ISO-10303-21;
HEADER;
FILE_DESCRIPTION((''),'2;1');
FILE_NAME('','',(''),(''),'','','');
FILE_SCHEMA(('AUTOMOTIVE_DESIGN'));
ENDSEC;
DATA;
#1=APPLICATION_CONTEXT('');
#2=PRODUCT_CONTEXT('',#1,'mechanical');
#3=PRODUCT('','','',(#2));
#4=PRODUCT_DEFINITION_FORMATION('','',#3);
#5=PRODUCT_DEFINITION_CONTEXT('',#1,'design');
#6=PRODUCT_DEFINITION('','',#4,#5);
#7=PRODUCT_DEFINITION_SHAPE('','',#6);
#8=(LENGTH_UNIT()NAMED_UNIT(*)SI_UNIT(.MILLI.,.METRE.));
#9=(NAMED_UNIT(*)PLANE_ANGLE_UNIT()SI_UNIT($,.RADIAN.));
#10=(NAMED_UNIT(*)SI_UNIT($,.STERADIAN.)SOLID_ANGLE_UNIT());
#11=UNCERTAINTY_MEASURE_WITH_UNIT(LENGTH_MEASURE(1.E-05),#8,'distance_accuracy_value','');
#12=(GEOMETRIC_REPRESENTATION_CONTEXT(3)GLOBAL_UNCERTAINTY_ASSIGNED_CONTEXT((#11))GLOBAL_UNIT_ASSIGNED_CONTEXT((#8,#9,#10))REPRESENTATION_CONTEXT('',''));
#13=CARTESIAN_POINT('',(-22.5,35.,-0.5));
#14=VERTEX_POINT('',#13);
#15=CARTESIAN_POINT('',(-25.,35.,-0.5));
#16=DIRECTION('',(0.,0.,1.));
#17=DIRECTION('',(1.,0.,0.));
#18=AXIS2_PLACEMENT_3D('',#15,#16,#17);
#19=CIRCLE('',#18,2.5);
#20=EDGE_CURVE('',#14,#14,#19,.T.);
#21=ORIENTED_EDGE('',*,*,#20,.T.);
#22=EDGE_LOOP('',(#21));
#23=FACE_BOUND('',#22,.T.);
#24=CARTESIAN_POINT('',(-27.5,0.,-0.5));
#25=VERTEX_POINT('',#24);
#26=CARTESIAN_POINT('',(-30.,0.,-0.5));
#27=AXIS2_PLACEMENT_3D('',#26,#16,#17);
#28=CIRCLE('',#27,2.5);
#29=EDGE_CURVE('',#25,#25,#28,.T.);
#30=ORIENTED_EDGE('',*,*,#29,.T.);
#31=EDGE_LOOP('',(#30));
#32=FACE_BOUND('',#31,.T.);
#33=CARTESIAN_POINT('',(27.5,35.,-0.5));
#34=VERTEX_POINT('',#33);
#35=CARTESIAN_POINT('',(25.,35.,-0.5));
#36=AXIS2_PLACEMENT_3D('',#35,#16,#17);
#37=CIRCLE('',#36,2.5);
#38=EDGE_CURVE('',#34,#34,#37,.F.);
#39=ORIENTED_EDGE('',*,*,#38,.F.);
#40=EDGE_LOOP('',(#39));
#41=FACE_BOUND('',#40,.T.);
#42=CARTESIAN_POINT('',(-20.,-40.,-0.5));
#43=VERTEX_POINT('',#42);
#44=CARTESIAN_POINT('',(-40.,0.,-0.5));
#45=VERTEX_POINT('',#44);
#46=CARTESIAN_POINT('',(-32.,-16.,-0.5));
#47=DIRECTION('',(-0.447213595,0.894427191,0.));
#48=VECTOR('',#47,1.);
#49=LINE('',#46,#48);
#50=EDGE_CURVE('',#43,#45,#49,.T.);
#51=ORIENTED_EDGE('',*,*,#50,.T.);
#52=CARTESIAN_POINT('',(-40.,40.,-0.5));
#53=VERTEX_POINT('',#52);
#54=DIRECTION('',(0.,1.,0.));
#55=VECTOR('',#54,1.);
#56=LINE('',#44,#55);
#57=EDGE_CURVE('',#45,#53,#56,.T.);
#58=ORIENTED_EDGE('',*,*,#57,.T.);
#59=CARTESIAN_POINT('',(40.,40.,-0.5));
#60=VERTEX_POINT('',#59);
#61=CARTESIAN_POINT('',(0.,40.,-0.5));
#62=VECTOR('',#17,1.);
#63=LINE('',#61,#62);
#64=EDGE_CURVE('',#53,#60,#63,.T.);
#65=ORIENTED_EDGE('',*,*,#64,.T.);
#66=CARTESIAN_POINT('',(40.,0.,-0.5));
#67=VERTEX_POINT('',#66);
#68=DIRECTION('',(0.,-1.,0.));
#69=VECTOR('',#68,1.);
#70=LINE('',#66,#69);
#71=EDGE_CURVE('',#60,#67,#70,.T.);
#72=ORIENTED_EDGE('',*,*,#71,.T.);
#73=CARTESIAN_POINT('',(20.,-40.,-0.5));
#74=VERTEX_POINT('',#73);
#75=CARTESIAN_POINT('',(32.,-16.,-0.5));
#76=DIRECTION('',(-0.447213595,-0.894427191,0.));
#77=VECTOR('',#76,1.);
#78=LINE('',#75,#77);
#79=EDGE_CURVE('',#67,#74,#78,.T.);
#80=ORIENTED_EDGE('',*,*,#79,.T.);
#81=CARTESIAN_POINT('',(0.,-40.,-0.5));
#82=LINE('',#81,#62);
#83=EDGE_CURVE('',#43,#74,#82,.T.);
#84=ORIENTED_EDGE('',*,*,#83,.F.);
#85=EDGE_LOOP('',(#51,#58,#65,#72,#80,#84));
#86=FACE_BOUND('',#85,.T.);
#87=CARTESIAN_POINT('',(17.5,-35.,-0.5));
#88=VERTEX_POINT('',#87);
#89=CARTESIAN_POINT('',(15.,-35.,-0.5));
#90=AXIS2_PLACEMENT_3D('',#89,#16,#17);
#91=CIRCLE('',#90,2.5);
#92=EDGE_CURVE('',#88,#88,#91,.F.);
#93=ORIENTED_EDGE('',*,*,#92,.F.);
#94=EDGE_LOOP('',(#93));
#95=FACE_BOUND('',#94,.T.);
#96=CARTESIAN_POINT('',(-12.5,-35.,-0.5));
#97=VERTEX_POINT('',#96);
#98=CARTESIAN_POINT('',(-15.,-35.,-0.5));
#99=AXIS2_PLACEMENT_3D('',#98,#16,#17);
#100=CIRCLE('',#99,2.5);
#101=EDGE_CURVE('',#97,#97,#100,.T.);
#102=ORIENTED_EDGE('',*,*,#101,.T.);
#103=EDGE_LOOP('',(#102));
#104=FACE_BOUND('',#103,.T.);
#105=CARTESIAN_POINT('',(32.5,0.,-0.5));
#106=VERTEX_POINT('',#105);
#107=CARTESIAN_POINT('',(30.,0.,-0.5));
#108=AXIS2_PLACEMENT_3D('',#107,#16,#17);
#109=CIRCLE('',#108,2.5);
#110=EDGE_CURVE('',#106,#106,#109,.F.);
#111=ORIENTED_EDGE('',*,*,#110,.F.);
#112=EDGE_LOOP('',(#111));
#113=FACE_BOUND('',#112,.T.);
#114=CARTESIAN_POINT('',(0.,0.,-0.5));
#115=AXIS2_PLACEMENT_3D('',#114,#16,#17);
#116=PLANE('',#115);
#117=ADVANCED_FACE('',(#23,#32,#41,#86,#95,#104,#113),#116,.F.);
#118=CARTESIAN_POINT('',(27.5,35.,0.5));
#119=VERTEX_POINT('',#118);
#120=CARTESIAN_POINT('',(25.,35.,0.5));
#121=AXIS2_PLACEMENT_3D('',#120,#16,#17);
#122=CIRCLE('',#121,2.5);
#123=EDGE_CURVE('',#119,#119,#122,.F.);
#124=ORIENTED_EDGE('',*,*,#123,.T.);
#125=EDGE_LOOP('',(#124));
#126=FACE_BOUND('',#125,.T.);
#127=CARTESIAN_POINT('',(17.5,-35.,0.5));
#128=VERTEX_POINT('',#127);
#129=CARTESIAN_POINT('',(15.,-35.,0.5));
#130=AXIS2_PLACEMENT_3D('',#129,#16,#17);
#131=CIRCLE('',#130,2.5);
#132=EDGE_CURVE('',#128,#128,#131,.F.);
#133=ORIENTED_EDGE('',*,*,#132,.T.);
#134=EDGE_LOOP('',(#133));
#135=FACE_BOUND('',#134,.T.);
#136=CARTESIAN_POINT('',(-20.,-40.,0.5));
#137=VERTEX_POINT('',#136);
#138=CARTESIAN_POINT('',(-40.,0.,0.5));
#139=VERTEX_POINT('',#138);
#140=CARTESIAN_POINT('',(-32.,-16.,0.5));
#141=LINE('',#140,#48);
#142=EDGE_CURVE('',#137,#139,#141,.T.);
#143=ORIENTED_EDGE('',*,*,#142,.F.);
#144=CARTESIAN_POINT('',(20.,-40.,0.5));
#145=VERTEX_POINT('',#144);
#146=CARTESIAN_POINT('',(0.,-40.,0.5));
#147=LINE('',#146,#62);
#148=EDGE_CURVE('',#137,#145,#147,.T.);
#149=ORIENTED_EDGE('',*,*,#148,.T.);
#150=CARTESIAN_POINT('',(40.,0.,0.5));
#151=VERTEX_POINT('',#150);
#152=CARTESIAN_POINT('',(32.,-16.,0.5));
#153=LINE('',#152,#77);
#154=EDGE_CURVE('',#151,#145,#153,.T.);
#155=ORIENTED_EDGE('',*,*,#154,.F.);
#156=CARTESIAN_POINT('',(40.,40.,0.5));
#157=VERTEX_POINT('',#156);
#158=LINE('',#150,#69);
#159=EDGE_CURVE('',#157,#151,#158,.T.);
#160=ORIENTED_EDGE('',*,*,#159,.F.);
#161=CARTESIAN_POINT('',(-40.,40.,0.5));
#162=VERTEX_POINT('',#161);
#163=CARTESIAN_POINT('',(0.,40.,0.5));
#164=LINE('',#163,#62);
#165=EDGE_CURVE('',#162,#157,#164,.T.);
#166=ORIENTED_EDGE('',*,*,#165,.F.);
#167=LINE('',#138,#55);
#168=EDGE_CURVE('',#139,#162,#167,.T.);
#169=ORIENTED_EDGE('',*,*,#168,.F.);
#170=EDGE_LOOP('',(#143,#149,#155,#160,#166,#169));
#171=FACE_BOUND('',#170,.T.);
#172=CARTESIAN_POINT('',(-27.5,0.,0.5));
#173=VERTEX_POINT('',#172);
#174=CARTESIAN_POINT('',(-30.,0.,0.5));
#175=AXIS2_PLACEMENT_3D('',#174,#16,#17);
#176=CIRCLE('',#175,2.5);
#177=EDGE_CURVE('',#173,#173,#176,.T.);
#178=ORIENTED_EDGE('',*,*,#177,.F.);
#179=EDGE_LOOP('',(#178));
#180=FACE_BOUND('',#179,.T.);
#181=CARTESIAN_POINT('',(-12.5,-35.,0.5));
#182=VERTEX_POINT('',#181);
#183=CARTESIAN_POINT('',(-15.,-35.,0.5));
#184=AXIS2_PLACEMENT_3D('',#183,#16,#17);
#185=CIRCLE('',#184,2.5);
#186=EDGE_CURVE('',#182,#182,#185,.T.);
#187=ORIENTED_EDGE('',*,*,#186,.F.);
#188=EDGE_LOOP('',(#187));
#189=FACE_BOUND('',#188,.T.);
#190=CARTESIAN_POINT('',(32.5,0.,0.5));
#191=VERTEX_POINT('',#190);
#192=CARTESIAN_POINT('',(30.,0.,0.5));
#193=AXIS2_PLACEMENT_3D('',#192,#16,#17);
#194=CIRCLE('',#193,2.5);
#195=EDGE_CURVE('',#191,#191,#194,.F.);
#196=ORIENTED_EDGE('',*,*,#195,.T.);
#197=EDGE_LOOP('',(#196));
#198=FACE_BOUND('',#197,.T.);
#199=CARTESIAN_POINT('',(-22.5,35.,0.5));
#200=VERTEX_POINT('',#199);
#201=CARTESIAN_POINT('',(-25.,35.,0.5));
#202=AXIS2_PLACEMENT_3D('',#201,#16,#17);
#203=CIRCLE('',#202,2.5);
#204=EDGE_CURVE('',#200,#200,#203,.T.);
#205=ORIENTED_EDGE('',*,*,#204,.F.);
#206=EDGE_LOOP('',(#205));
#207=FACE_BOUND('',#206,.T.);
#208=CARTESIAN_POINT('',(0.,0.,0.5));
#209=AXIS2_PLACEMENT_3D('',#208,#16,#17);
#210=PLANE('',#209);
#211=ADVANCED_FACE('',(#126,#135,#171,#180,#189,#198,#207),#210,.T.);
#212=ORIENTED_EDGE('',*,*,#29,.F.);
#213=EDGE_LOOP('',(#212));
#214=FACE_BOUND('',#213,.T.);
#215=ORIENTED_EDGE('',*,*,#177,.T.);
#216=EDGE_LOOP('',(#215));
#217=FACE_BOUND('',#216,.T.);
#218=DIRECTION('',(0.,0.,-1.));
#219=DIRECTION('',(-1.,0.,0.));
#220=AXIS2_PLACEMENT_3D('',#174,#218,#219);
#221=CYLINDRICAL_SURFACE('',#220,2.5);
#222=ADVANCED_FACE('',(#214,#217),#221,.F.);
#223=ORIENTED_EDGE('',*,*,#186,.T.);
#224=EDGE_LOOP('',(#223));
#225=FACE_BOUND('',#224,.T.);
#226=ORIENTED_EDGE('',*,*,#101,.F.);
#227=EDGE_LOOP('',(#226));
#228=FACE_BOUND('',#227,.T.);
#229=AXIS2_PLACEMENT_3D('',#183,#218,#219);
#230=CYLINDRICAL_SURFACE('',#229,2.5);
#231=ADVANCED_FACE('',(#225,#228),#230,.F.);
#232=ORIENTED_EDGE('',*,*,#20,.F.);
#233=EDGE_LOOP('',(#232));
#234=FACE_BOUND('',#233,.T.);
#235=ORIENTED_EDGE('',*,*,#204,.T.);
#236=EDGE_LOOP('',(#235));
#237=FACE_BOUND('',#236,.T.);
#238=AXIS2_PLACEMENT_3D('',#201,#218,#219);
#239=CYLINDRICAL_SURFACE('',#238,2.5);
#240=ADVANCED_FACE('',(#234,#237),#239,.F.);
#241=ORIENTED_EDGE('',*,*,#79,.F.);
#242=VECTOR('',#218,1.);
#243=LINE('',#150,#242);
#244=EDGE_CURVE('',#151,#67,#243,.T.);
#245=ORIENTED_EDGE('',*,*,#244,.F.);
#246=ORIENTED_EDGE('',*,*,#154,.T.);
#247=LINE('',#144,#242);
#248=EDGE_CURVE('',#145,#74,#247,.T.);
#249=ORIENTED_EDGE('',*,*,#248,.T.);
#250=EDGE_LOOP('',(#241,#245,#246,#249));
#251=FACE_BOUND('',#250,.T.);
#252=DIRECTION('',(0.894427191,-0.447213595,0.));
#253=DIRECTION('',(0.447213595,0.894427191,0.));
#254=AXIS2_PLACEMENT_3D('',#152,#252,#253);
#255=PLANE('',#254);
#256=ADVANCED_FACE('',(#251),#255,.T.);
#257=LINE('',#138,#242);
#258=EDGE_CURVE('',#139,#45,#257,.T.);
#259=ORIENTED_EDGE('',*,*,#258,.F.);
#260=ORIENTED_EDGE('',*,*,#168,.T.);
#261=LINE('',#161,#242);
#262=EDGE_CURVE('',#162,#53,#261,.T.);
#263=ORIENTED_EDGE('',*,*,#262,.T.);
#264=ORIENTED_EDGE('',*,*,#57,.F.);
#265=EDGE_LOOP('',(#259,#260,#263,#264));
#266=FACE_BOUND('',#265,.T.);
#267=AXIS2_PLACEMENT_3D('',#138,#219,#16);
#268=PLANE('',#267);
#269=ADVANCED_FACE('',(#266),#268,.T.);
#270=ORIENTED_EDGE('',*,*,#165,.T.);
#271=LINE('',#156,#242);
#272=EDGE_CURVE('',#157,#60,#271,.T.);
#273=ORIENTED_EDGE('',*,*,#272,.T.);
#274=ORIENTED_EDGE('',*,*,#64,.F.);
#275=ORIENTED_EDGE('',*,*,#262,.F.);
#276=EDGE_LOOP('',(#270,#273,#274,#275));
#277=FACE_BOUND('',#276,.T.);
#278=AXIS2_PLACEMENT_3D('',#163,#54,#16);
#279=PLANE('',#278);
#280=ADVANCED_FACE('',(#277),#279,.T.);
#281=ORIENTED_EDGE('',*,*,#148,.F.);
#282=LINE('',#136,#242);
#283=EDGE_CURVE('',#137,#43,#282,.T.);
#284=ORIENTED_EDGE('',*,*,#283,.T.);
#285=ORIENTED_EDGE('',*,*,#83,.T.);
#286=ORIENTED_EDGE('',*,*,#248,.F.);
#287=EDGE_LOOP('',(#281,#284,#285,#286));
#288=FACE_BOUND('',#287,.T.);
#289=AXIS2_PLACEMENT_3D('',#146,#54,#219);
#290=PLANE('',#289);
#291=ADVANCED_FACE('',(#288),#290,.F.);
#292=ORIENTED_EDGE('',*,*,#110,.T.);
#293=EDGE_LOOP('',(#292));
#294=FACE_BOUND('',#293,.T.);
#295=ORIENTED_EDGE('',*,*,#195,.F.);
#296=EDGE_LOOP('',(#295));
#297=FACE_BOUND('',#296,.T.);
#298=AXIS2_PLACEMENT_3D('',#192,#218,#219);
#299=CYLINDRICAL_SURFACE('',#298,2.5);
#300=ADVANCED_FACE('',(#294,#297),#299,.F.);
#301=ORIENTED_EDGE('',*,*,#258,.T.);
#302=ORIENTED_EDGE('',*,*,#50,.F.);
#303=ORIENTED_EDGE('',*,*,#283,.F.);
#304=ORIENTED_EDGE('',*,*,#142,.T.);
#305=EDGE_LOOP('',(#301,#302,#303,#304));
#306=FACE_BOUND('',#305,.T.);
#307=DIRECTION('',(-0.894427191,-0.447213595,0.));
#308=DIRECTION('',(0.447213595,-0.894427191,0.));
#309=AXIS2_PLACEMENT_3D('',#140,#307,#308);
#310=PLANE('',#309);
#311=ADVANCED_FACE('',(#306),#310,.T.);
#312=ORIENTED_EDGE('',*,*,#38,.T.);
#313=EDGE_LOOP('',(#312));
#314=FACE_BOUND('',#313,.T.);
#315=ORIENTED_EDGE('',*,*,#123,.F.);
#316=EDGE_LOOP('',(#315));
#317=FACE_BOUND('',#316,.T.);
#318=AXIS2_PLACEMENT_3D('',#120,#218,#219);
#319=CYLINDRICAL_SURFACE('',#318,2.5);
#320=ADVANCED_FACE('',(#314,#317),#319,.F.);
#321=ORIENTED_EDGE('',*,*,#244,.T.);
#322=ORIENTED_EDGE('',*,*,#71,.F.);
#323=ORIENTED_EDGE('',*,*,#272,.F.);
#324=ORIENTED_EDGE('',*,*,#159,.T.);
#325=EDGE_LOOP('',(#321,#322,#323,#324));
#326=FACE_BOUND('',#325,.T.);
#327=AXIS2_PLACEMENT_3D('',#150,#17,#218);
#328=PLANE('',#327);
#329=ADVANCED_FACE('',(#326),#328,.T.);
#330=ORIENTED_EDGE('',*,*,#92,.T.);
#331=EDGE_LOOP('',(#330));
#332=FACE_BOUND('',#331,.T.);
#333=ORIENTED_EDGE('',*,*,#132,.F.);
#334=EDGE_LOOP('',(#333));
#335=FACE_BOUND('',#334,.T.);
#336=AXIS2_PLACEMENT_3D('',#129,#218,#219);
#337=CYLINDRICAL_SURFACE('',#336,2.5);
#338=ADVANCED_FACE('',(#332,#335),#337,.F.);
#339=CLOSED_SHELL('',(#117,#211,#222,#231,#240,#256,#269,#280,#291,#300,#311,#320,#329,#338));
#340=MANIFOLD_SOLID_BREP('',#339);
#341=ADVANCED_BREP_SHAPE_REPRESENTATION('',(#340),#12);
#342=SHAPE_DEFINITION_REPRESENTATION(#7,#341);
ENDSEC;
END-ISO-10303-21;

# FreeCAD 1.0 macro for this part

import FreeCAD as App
import Part
import Sketcher
from FreeCAD import Vector


def add_polygon(sketch, points):
    """Adds a closed chain of lines whose ends are joined by coincident constraints."""
    first, n = sketch.GeometryCount, len(points)
    for a, b in zip(points, points[1:] + points[:1]):
        sketch.addGeometry(Part.LineSegment(App.Vector(*a, 0), App.Vector(*b, 0)), False)
    for i in range(n):
        sketch.addConstraint(Sketcher.Constraint("Coincident", first + i, 2, first + (i + 1) % n, 1))

doc = App.newDocument("Part")
body = doc.addObject("PartDesign::Body", "Body")

# Sketch on XY plane
sketch1 = body.newObject("Sketcher::SketchObject", "Sketch")
sketch1.AttachmentSupport = (doc.getObject("XY_Plane"), [""])
sketch1.MapMode = "FlatFace"
add_polygon(sketch1, [(40, 40), (-40, 40), (-40, 0), (-20, -40), (20, -40), (40, 0)])  # lines 0-5
sketch1.addGeometry(Part.Circle(Vector(15, -35, 0), Vector(0, 0, 1), 2.5), False)  # 6
sketch1.addGeometry(Part.Circle(Vector(30, 0, 0), Vector(0, 0, 1), 2.5), False)  # 7
sketch1.addGeometry(Part.Circle(Vector(25, 35, 0), Vector(0, 0, 1), 2.5), False)  # 8
sketch1.addGeometry(Part.Circle(Vector(-25, 35, 0), Vector(0, 0, 1), 2.5), False)  # 9
sketch1.addGeometry(Part.Circle(Vector(-15, -35, 0), Vector(0, 0, 1), 2.5), False)  # 10
sketch1.addGeometry(Part.Circle(Vector(-30, 0, 0), Vector(0, 0, 1), 2.5), False)  # 11
sketch1.addConstraint(Sketcher.Constraint("Horizontal", 0))
sketch1.addConstraint(Sketcher.Constraint("Vertical", 1))
sketch1.addConstraint(Sketcher.Constraint("Horizontal", 3))
sketch1.addConstraint(Sketcher.Constraint("Vertical", 5))
sketch1.addConstraint(Sketcher.Constraint("Equal", 6, 7))
sketch1.addConstraint(Sketcher.Constraint("Equal", 7, 8))
sketch1.addConstraint(Sketcher.Constraint("Equal", 8, 9))
sketch1.addConstraint(Sketcher.Constraint("Equal", 9, 10))
sketch1.addConstraint(Sketcher.Constraint("Equal", 10, 11))
sketch1.addConstraint(Sketcher.Constraint("Symmetric", 7, 3, 11, 3, -1, 1))
sketch1.addConstraint(Sketcher.Constraint("Symmetric", 1, 2, 4, 2, -1, 1))
sketch1.addConstraint(Sketcher.Constraint("Symmetric", 8, 3, 9, 3, -2))
sketch1.addConstraint(Sketcher.Constraint("Symmetric", 6, 3, 10, 3, -2))
sketch1.addConstraint(Sketcher.Constraint("PointOnObject", 7, 3, -1))
sketch1.addConstraint(Sketcher.Constraint("PointOnObject", 1, 2, -1))
sketch1.addConstraint(Sketcher.Constraint("Equal", 3, 1))
sketch1.addConstraint(Sketcher.Constraint("Equal", 2, 4))
sketch1.addConstraint(Sketcher.Constraint("Diameter", 6, 5.0))
sketch1.addConstraint(Sketcher.Constraint("DistanceX", 0, 2, 0, 1, 80.0))
sketch1.addConstraint(Sketcher.Constraint("DistanceX", 3, 1, 3, 2, 40.0))
sketch1.addConstraint(Sketcher.Constraint("DistanceX", -1, 1, 6, 3, 15.0))
sketch1.addConstraint(Sketcher.Constraint("DistanceY", 6, 3, -1, 1, 35.0))
sketch1.addConstraint(Sketcher.Constraint("DistanceX", -1, 1, 7, 3, 30.0))
sketch1.addConstraint(Sketcher.Constraint("DistanceX", -1, 1, 8, 3, 25.0))
sketch1.addConstraint(Sketcher.Constraint("DistanceY", -1, 1, 8, 3, 35.0))
sketch1.addConstraint(Sketcher.Constraint("DistanceY", 2, 2, -1, 1, 40.0))
pad1 = body.newObject("PartDesign::Pad", "Pad")
pad1.Profile = sketch1
pad1.Length = 1
pad1.Midplane = True

doc.recompute()
